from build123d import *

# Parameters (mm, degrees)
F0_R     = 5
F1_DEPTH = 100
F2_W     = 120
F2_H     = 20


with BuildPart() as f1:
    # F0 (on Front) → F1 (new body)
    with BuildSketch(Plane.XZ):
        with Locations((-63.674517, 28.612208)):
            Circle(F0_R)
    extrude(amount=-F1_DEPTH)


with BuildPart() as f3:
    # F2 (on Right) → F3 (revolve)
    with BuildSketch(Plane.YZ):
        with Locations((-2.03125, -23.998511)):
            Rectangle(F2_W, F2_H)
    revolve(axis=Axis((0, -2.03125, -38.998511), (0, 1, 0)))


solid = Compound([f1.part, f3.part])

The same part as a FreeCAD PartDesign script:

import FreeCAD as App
import Part
import Sketcher
from FreeCAD import Vector
Q = App.Units.Quantity

doc = App.newDocument("Part")
body = doc.addObject("PartDesign::Body", "Body")

sketch1 = doc.addObject("Sketcher::SketchObject", "Sketch")
body.addObject(sketch1)
sketch1.AttachmentSupport = (doc.XZ_Plane, [""])
sketch1.MapMode = "FlatFace"
sketch1.addGeometry(Part.Circle(Vector(-64, 29, 0), Vector(0, 0, 1), 5), False)
sketch1.addConstraint([
    Sketcher.Constraint("Diameter", 0, Q("10 mm")),
    Sketcher.Constraint("DistanceX", 0, 3, -1, 1, Q("63.674517 mm")),
    Sketcher.Constraint("DistanceY", -1, 1, 0, 3, Q("28.612208 mm")),
])
pad1 = doc.addObject("PartDesign::Pad", "Pad")
body.addObject(pad1)
pad1.Profile = sketch1
pad1.Length = 100
pad1.Reversed = True
body2 = doc.addObject("PartDesign::Body", "Body001")

sketch2 = doc.addObject("Sketcher::SketchObject", "Sketch001")
body2.addObject(sketch2)
sketch2.AttachmentSupport = (doc.getObject("YZ_Plane001"), [""])
sketch2.MapMode = "FlatFace"
sketch2.addGeometry([
    Part.LineSegment(Vector(-62, -14, 0), Vector(-62, -34, 0)),
    Part.LineSegment(Vector(-62, -34, 0), Vector(58, -34, 0)),
    Part.LineSegment(Vector(58, -34, 0), Vector(58, -14, 0)),
    Part.LineSegment(Vector(58, -14, 0), Vector(-62, -14, 0)),
], False)
sketch2.addGeometry(Part.LineSegment(Vector(-62, -39, 0), Vector(58, -39, 0)), True)
sketch2.addConstraint([
    Sketcher.Constraint("Coincident", 0, 2, 1, 1),
    Sketcher.Constraint("Coincident", 1, 2, 2, 1),
    Sketcher.Constraint("Coincident", 2, 2, 3, 1),
    Sketcher.Constraint("Coincident", 3, 2, 0, 1),
    Sketcher.Constraint("Vertical", 0),
    Sketcher.Constraint("Horizontal", 1),
    Sketcher.Constraint("Vertical", 2),
    Sketcher.Constraint("Horizontal", 3),
    Sketcher.Constraint("Horizontal", 4),
    Sketcher.Constraint("Vertical", 3, 2, 4, 1),
    Sketcher.Constraint("Vertical", 2, 2, 4, 2),
    Sketcher.Constraint("DistanceX", 1, 1, 1, 2, Q("120 mm")),
    Sketcher.Constraint("DistanceY", 0, 2, 0, 1, Q("20 mm")),
    Sketcher.Constraint("DistanceY", 4, 1, 0, 2, Q("5 mm")),
    Sketcher.Constraint("DistanceX", 0, 2, -1, 1, Q("62.03125 mm")),
    Sketcher.Constraint("DistanceY", 0, 2, -1, 1, Q("33.998511 mm")),
])
revolution = doc.addObject("PartDesign::Revolution", "Revolution")
body2.addObject(revolution)
revolution.Profile = sketch2
revolution.ReferenceAxis = (sketch2, ["Axis0"])
revolution.Angle = 360

doc.recompute()
